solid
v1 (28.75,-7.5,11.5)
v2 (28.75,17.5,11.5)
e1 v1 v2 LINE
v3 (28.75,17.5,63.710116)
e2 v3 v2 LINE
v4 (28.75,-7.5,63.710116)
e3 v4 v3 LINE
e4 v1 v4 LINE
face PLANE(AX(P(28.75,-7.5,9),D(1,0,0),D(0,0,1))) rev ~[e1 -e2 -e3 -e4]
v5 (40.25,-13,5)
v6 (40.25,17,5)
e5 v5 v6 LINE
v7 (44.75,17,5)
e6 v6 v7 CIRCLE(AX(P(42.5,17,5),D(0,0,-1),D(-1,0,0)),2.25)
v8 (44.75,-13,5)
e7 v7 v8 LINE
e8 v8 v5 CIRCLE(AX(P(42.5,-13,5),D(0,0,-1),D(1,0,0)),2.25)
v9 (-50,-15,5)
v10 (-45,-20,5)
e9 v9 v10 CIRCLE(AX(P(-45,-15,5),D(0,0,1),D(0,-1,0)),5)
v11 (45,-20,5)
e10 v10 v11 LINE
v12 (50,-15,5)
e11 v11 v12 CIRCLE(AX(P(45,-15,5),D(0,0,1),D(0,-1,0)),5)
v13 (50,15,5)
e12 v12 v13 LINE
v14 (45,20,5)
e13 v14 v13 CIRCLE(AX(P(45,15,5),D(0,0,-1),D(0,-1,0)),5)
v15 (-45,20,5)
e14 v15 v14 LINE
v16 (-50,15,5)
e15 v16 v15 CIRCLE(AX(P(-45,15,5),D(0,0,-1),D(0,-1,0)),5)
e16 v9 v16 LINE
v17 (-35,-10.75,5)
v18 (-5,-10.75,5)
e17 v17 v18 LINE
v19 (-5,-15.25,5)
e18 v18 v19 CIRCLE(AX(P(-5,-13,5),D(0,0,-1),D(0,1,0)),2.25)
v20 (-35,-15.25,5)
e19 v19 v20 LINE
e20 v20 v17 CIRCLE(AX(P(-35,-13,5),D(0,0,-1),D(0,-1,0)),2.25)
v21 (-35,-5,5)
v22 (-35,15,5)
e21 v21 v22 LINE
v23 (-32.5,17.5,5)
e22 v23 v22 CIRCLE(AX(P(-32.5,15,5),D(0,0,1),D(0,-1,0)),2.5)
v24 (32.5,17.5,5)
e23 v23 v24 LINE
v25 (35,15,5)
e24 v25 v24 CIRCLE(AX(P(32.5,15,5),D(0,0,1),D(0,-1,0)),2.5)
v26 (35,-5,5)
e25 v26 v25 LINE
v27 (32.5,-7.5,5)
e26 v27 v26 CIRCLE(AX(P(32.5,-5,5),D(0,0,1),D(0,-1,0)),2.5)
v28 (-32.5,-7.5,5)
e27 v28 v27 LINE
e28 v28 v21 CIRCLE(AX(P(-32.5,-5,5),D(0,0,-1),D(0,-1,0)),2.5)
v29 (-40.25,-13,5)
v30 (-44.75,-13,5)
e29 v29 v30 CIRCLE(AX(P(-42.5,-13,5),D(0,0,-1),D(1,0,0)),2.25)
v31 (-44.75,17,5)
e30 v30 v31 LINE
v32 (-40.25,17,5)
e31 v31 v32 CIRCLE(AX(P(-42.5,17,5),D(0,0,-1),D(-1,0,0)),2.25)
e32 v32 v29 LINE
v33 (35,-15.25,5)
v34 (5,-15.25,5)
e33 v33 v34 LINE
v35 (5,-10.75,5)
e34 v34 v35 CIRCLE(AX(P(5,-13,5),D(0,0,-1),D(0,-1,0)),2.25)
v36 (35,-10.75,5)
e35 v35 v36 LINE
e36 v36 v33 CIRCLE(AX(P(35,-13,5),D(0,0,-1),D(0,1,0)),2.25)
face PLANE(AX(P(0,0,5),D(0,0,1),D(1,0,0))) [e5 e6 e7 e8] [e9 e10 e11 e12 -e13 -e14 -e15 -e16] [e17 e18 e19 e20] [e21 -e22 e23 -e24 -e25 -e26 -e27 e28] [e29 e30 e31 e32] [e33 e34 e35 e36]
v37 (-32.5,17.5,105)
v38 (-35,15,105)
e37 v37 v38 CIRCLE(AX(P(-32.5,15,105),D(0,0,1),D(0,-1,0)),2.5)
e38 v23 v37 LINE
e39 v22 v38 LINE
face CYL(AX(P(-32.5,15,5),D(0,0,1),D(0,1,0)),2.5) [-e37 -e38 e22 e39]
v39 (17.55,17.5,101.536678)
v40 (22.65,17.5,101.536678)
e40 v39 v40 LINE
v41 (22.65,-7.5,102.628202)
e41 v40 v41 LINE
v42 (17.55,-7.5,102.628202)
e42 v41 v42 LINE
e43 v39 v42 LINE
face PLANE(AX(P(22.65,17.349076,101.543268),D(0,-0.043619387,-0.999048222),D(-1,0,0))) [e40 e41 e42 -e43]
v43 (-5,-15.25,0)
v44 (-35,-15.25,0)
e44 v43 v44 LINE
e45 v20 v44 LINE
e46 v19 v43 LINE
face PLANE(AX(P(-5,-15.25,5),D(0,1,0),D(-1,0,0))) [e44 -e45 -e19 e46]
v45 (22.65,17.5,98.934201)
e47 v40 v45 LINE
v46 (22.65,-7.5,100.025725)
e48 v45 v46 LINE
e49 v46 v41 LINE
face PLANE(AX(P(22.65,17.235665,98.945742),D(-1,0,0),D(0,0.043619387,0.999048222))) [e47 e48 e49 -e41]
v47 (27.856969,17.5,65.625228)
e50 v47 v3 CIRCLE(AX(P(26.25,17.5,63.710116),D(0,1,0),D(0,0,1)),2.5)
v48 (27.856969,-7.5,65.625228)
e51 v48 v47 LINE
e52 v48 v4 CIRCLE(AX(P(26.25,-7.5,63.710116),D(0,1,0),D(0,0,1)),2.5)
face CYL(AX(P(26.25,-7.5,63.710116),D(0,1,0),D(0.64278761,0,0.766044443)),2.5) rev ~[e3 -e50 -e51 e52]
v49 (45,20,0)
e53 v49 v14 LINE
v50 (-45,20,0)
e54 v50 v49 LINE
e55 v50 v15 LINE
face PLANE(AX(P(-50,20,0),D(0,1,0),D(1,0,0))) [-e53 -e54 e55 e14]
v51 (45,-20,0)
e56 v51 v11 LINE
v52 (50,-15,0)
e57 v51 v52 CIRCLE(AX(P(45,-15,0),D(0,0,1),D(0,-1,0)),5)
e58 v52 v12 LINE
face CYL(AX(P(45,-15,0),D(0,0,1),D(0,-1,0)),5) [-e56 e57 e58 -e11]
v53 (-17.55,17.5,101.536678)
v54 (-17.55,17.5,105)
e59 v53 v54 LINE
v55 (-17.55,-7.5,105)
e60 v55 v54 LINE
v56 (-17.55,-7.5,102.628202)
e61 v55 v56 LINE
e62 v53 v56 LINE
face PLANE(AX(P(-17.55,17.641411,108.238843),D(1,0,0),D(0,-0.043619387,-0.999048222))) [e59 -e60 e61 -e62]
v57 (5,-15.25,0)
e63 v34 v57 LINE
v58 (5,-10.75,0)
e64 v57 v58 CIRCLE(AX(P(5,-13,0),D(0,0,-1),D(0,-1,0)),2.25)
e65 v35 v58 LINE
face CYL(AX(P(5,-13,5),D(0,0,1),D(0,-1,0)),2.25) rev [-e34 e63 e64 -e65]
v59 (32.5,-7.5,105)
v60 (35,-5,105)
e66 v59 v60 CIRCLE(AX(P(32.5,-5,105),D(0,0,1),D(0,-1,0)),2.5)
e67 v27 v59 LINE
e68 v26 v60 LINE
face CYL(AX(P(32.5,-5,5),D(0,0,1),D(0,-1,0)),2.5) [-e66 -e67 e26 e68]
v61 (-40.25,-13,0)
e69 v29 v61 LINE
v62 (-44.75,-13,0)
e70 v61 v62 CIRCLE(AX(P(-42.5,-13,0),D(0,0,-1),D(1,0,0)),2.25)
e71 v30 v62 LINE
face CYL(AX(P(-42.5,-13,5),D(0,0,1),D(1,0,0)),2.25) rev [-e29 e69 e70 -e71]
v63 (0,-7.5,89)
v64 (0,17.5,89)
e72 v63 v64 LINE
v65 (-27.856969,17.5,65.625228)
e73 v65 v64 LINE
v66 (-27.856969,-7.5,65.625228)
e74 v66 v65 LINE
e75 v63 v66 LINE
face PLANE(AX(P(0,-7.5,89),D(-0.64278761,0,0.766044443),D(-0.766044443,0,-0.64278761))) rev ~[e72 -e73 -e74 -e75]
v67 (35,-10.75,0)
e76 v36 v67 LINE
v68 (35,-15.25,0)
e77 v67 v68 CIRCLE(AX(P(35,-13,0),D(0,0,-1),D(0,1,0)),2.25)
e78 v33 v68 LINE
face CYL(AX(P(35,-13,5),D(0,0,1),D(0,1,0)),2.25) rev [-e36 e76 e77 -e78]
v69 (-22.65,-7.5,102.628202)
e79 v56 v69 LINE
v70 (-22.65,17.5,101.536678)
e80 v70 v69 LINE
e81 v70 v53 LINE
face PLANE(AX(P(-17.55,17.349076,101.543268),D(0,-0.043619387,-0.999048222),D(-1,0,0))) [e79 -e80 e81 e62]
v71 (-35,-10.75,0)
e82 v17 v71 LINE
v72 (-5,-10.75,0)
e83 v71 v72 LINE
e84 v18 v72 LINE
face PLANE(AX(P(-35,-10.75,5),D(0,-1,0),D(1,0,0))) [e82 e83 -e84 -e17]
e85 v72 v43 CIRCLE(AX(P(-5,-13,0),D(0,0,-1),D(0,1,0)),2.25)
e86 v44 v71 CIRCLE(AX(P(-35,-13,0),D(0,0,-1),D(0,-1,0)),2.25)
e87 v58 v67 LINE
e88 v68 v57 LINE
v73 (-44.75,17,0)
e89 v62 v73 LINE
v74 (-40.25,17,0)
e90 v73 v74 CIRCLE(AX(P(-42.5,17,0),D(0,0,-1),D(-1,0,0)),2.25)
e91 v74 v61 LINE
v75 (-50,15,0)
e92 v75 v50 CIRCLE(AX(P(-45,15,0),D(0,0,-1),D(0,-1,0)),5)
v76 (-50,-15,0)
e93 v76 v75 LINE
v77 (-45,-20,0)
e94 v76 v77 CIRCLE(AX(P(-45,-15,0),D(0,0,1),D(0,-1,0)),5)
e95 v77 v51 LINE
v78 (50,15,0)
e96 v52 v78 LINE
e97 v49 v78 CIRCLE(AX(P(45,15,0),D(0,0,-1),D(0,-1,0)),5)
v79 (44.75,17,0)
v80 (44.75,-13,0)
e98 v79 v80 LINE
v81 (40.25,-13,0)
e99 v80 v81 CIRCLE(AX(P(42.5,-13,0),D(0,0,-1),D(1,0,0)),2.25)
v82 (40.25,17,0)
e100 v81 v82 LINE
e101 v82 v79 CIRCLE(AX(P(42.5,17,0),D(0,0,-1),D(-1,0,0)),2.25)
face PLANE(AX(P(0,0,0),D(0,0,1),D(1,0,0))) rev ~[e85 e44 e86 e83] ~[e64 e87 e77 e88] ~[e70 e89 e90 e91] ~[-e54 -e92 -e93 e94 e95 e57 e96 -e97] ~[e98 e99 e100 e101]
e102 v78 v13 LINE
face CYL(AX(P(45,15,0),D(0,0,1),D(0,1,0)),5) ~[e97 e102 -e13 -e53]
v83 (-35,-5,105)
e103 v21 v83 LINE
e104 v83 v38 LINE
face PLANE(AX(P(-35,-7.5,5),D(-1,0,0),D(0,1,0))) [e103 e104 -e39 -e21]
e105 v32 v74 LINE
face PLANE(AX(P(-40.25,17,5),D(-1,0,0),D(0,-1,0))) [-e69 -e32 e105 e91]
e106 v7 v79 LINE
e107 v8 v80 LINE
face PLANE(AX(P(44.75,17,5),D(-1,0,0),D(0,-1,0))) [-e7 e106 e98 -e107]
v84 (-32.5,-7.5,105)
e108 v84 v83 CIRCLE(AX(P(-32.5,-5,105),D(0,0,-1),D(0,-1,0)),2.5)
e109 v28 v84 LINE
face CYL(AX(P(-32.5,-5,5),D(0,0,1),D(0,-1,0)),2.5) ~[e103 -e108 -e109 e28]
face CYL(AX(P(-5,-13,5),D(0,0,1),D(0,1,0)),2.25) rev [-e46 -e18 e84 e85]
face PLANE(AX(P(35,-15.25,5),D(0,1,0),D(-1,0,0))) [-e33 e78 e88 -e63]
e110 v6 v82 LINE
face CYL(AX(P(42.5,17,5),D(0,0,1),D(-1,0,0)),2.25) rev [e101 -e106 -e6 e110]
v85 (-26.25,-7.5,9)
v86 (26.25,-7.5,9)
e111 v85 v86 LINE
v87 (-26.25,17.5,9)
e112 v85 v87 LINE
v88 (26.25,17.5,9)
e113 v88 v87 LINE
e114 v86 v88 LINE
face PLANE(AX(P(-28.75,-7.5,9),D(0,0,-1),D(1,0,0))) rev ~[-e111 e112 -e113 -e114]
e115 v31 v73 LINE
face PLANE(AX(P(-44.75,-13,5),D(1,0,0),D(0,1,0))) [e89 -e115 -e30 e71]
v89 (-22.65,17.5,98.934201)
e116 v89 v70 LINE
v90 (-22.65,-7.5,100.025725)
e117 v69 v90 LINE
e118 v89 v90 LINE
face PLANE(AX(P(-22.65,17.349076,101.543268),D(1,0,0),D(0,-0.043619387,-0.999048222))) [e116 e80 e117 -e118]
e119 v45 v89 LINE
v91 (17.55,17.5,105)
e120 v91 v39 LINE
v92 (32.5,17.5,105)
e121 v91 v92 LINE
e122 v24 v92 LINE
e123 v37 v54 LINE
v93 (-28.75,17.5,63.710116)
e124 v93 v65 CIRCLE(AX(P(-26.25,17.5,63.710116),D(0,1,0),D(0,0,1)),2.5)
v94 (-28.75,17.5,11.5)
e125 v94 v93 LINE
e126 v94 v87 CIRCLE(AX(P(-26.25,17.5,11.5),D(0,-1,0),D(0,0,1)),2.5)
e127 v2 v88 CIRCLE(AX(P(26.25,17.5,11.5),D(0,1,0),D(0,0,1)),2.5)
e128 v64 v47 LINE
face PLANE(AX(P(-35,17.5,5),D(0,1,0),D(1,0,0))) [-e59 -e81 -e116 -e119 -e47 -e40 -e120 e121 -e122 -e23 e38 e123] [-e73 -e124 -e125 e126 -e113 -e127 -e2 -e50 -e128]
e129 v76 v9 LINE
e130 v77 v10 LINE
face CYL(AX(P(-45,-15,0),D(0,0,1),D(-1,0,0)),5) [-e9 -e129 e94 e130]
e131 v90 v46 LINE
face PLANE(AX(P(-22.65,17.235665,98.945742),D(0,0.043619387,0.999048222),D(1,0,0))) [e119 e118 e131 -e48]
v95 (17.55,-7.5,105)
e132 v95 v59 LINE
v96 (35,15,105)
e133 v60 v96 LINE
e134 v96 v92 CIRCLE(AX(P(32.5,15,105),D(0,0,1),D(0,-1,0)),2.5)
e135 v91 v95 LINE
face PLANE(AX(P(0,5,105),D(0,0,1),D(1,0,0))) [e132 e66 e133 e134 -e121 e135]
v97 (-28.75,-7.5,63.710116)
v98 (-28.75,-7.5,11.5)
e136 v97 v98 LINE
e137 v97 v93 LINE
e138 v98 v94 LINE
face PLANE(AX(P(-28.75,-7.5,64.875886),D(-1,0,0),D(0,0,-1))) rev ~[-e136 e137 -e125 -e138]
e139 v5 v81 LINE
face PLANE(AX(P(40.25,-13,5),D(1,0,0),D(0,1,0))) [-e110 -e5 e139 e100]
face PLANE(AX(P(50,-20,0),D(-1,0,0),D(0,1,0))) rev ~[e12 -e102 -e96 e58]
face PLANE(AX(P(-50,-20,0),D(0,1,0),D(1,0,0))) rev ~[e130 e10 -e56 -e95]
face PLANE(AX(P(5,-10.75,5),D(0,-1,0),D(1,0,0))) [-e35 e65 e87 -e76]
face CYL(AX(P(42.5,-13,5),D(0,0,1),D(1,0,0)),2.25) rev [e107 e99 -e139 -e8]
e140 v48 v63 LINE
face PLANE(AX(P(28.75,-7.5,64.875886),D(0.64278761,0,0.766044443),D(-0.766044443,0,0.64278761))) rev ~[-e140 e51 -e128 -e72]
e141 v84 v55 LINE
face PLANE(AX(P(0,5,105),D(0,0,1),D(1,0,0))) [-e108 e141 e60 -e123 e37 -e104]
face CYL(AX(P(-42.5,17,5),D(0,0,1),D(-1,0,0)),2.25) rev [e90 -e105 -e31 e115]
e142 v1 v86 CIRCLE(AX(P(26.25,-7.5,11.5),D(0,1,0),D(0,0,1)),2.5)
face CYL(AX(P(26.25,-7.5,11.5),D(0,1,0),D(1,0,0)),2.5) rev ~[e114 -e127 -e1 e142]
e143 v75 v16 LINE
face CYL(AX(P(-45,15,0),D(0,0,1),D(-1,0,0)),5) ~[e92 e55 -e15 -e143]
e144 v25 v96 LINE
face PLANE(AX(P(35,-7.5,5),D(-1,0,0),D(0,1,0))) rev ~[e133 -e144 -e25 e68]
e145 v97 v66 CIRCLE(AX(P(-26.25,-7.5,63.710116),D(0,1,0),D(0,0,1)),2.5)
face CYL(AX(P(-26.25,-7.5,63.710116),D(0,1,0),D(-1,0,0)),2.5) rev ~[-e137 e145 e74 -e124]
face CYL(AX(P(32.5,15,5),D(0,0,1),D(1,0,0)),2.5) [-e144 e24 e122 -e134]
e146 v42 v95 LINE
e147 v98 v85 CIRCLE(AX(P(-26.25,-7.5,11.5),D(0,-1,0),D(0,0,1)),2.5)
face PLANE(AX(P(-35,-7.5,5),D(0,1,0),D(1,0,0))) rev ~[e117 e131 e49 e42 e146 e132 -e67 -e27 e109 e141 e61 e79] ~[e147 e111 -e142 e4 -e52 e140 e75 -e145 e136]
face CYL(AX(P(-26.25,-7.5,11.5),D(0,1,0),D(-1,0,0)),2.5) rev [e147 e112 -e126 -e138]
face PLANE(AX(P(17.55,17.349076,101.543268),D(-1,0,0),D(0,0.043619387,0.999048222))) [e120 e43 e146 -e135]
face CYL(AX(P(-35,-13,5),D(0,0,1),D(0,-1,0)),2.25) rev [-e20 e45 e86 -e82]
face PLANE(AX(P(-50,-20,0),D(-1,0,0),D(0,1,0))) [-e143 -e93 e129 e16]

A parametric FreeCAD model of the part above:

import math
import FreeCAD as App
import Part
import Sketcher
from FreeCAD import Vector
Q = App.Units.Quantity


def edges_at(feature, points):
    """Names of the edges that pass closest to the given points."""
    edges = feature.Shape.Edges
    near = lambda p: min(range(len(edges)), key=lambda i: edges[i].distToShape(Part.Vertex(*p))[0])
    return sorted({f"Edge{near(p) + 1}" for p in points})


def add_polygon(sketch, points):
    """Adds a closed chain of lines whose ends are joined by coincident constraints."""
    first, n = sketch.GeometryCount, len(points)
    for a, b in zip(points, points[1:] + points[:1]):
        sketch.addGeometry(Part.LineSegment(App.Vector(*a, 0), App.Vector(*b, 0)), False)
    for i in range(n):
        sketch.addConstraint(Sketcher.Constraint("Coincident", first + i, 2, first + (i + 1) % n, 1))

doc = App.newDocument("Part")
body = doc.addObject("PartDesign::Body", "Body")

# Sketch on XY plane
sketch1 = doc.addObject("Sketcher::SketchObject", "Sketch")
body.addObject(sketch1)
sketch1.AttachmentSupport = (doc.XY_Plane, [""])
sketch1.MapMode = "FlatFace"
add_polygon(sketch1, [(-50, 20), (-50, -20), (50, -20), (50, 20)])  # lines 0-3
sketch1.addConstraint([
    Sketcher.Constraint("Vertical", 0),
    Sketcher.Constraint("Horizontal", 1),
    Sketcher.Constraint("Vertical", 2),
    Sketcher.Constraint("Horizontal", 3),
    Sketcher.Constraint("Symmetric", 0, 2, 2, 2, -1, 1),
    Sketcher.Constraint("DistanceX", 1, 1, 1, 2, Q("100 mm")),
    Sketcher.Constraint("DistanceY", 0, 2, 0, 1, Q("40 mm")),
])
pad1 = doc.addObject("PartDesign::Pad", "Pad")
body.addObject(pad1)
pad1.Profile = sketch1
pad1.Length = 5

# Sketch on XY plane
sketch2 = doc.addObject("Sketcher::SketchObject", "Sketch001")
body.addObject(sketch2)
sketch2.AttachmentSupport = (doc.XY_Plane, [""])
sketch2.MapMode = "FlatFace"
sketch2.AttachmentOffset = App.Placement(Vector(0, 0, 5), App.Rotation())
sketch2.addGeometry([
    Part.LineSegment(Vector(-40.2, -13, 0), Vector(-40.2, 17, 0)),
    Part.ArcOfCircle(Part.Circle(Vector(-42.5, 17, 0), Vector(0, 0, 1), 2.2), math.radians(0), math.radians(180)),
    Part.LineSegment(Vector(-44.8, 17, 0), Vector(-44.8, -13, 0)),
    Part.ArcOfCircle(Part.Circle(Vector(-42.5, -13, 0), Vector(0, 0, 1), 2.2), math.radians(180), math.radians(360)),
], False)
sketch2.addConstraint([
    Sketcher.Constraint("Tangent", 0, 2, 1, 1),
    Sketcher.Constraint("Tangent", 1, 2, 2, 1),
    Sketcher.Constraint("Tangent", 2, 2, 3, 1),
    Sketcher.Constraint("Tangent", 3, 2, 0, 1),
    Sketcher.Constraint("Vertical", 0),
    Sketcher.Constraint("Vertical", 2),
    Sketcher.Constraint("DistanceY", 0, 1, 0, 2, Q("30 mm")),
    Sketcher.Constraint("Radius", 1, Q("2.25 mm")),
    Sketcher.Constraint("DistanceY", -1, 1, 1, 3, Q("17 mm")),
    Sketcher.Constraint("DistanceX", 1, 3, -1, 1, Q("42.5 mm")),
])
pocket1 = doc.addObject("PartDesign::Pocket", "Pocket")
body.addObject(pocket1)
pocket1.Profile = sketch2
pocket1.Length = 5

# Sketch on XY plane
sketch3 = doc.addObject("Sketcher::SketchObject", "Sketch002")
body.addObject(sketch3)
sketch3.AttachmentSupport = (doc.XY_Plane, [""])
sketch3.MapMode = "FlatFace"
sketch3.AttachmentOffset = App.Placement(Vector(0, 0, 5), App.Rotation())
sketch3.addGeometry([
    Part.LineSegment(Vector(-5, -10.8, 0), Vector(-35, -10.8, 0)),
    Part.ArcOfCircle(Part.Circle(Vector(-35, -13, 0), Vector(0, 0, 1), 2.2), math.radians(90), math.radians(270)),
    Part.LineSegment(Vector(-35, -15.2, 0), Vector(-5, -15.2, 0)),
    Part.ArcOfCircle(Part.Circle(Vector(-5, -13, 0), Vector(0, 0, 1), 2.2), math.radians(-90), math.radians(90)),
], False)
sketch3.addConstraint([
    Sketcher.Constraint("Tangent", 0, 2, 1, 1),
    Sketcher.Constraint("Tangent", 1, 2, 2, 1),
    Sketcher.Constraint("Tangent", 2, 2, 3, 1),
    Sketcher.Constraint("Tangent", 3, 2, 0, 1),
    Sketcher.Constraint("Horizontal", 0),
    Sketcher.Constraint("Horizontal", 2),
    Sketcher.Constraint("DistanceX", 0, 2, 0, 1, Q("30 mm")),
    Sketcher.Constraint("Radius", 1, Q("2.25 mm")),
    Sketcher.Constraint("DistanceX", 1, 3, -1, 1, Q("35 mm")),
    Sketcher.Constraint("DistanceY", 1, 3, -1, 1, Q("13 mm")),
])
pocket2 = doc.addObject("PartDesign::Pocket", "Pocket001")
body.addObject(pocket2)
pocket2.Profile = sketch3
pocket2.Length = 5

# Sketch on XY plane
sketch4 = doc.addObject("Sketcher::SketchObject", "Sketch003")
body.addObject(sketch4)
sketch4.AttachmentSupport = (doc.XY_Plane, [""])
sketch4.MapMode = "FlatFace"
sketch4.AttachmentOffset = App.Placement(Vector(0, 0, 5), App.Rotation())
sketch4.addGeometry([
    Part.LineSegment(Vector(35, -10.8, 0), Vector(5, -10.8, 0)),
    Part.ArcOfCircle(Part.Circle(Vector(5, -13, 0), Vector(0, 0, 1), 2.2), math.radians(90), math.radians(270)),
    Part.LineSegment(Vector(5, -15.2, 0), Vector(35, -15.2, 0)),
    Part.ArcOfCircle(Part.Circle(Vector(35, -13, 0), Vector(0, 0, 1), 2.2), math.radians(-90), math.radians(90)),
], False)
sketch4.addConstraint([
    Sketcher.Constraint("Tangent", 0, 2, 1, 1),
    Sketcher.Constraint("Tangent", 1, 2, 2, 1),
    Sketcher.Constraint("Tangent", 2, 2, 3, 1),
    Sketcher.Constraint("Tangent", 3, 2, 0, 1),
    Sketcher.Constraint("Horizontal", 0),
    Sketcher.Constraint("Horizontal", 2),
    Sketcher.Constraint("DistanceX", 0, 2, 0, 1, Q("30 mm")),
    Sketcher.Constraint("Radius", 1, Q("2.25 mm")),
    Sketcher.Constraint("DistanceX", -1, 1, 1, 3, Q("5 mm")),
    Sketcher.Constraint("DistanceY", 1, 3, -1, 1, Q("13 mm")),
])
pocket3 = doc.addObject("PartDesign::Pocket", "Pocket002")
body.addObject(pocket3)
pocket3.Profile = sketch4
pocket3.Length = 5

# Sketch on XY plane
sketch5 = doc.addObject("Sketcher::SketchObject", "Sketch004")
body.addObject(sketch5)
sketch5.AttachmentSupport = (doc.XY_Plane, [""])
sketch5.MapMode = "FlatFace"
sketch5.AttachmentOffset = App.Placement(Vector(0, 0, 5), App.Rotation())
sketch5.addGeometry([
    Part.LineSegment(Vector(44.8, -13, 0), Vector(44.8, 17, 0)),
    Part.ArcOfCircle(Part.Circle(Vector(42.5, 17, 0), Vector(0, 0, 1), 2.2), math.radians(0), math.radians(180)),
    Part.LineSegment(Vector(40.2, 17, 0), Vector(40.2, -13, 0)),
    Part.ArcOfCircle(Part.Circle(Vector(42.5, -13, 0), Vector(0, 0, 1), 2.2), math.radians(180), math.radians(360)),
], False)
sketch5.addConstraint([
    Sketcher.Constraint("Tangent", 0, 2, 1, 1),
    Sketcher.Constraint("Tangent", 1, 2, 2, 1),
    Sketcher.Constraint("Tangent", 2, 2, 3, 1),
    Sketcher.Constraint("Tangent", 3, 2, 0, 1),
    Sketcher.Constraint("Vertical", 0),
    Sketcher.Constraint("Vertical", 2),
    Sketcher.Constraint("DistanceY", 0, 1, 0, 2, Q("30 mm")),
    Sketcher.Constraint("Radius", 1, Q("2.25 mm")),
    Sketcher.Constraint("DistanceY", -1, 1, 1, 3, Q("17 mm")),
    Sketcher.Constraint("DistanceX", -1, 1, 1, 3, Q("42.5 mm")),
])
pocket4 = doc.addObject("PartDesign::Pocket", "Pocket003")
body.addObject(pocket4)
pocket4.Profile = sketch5
pocket4.Length = 5

# Sketch on XY plane
sketch6 = doc.addObject("Sketcher::SketchObject", "Sketch005")
body.addObject(sketch6)
sketch6.AttachmentSupport = (doc.XY_Plane, [""])
sketch6.MapMode = "FlatFace"
sketch6.AttachmentOffset = App.Placement(Vector(0, 0, 5), App.Rotation())
add_polygon(sketch6, [(-35, 18), (-35, -8), (35, -8), (35, 18)])  # lines 0-3
sketch6.addConstraint([
    Sketcher.Constraint("Vertical", 0),
    Sketcher.Constraint("Horizontal", 1),
    Sketcher.Constraint("Vertical", 2),
    Sketcher.Constraint("Horizontal", 3),
    Sketcher.Constraint("DistanceX", 1, 1, 1, 2, Q("70 mm")),
    Sketcher.Constraint("DistanceY", 0, 2, 0, 1, Q("25 mm")),
    Sketcher.Constraint("DistanceX", 0, 2, -1, 1, Q("35 mm")),
    Sketcher.Constraint("DistanceY", 0, 2, -1, 1, Q("7.5 mm")),
])
pad2 = doc.addObject("PartDesign::Pad", "Pad001")
body.addObject(pad2)
pad2.Profile = sketch6
pad2.Length = 100
doc.recompute()

fillet = doc.addObject("PartDesign::Fillet", "Fillet")
body.addObject(fillet)
fillet.Base = (pad2, edges_at(pad2, [
    (-50, 20, 2.5),
    (50, 20, 2.5),
    (50, -20, 2.5),
    (-50, -20, 2.5),
]))
fillet.Radius = 5
doc.recompute()

fillet2 = doc.addObject("PartDesign::Fillet", "Fillet001")
body.addObject(fillet2)
fillet2.Base = (fillet, edges_at(fillet, [
    (-35, 17.5, 55),
    (-35, -7.5, 55),
    (35, -7.5, 55),
    (35, 17.5, 55),
]))
fillet2.Radius = 2.5

# Sketch on XZ plane
sketch7 = doc.addObject("Sketcher::SketchObject", "Sketch006")
body.addObject(sketch7)
sketch7.AttachmentSupport = (doc.XZ_Plane, [""])
sketch7.MapMode = "FlatFace"
sketch7.AttachmentOffset = App.Placement(Vector(0, 0, 7.5), App.Rotation())
add_polygon(sketch7, [(-29, 9), (29, 9), (29, 65), (0, 89), (-29, 65)])  # lines 0-4
sketch7.addConstraint([
    Sketcher.Constraint("Horizontal", 0),
    Sketcher.Constraint("Vertical", 1),
    Sketcher.Constraint("Vertical", 4),
    Sketcher.Constraint("Symmetric", 1, 2, 3, 2, -2),
    Sketcher.Constraint("PointOnObject", 2, 2, -2),
    Sketcher.Constraint("Angle", 2, Q("140 deg")),
    Sketcher.Constraint("DistanceX", 0, 1, 0, 2, Q("57.5 mm")),
    Sketcher.Constraint("DistanceY", -1, 1, 0, 2, Q("9 mm")),
    Sketcher.Constraint("DistanceY", -1, 1, 2, 2, Q("89 mm")),
])
pocket5 = doc.addObject("PartDesign::Pocket", "Pocket004")
body.addObject(pocket5)
pocket5.Profile = sketch7
pocket5.Type = "ThroughAll"
doc.recompute()

fillet3 = doc.addObject("PartDesign::Fillet", "Fillet002")
body.addObject(fillet3)
fillet3.Base = (pocket5, edges_at(pocket5, [
    (28.75, 5, 9),
    (-28.75, 5, 9),
    (-28.75, 5, 64.876),
    (28.75, 5, 64.876),
]))
fillet3.Radius = 2.5

# Sketch on an angled plane
sketch8 = doc.addObject("Sketcher::SketchObject", "Sketch007")
body.addObject(sketch8)
sketch8.Placement = App.Placement(Vector(0, 12.891027, -0.562834), App.Rotation(Vector(-1, 0, 0), Vector(0, 0.043619387, 0.999048222), Vector(0, 0.999048222, -0.043619387), "ZXY"))
add_polygon(sketch8, [(22.6, 102.2), (17.6, 102.2), (17.6, 108.9), (-17.6, 108.9), (-17.6, 102.2), (-22.6, 102.2), (-22.6, 99.6), (22.6, 99.6)])  # lines 0-7
sketch8.addConstraint([
    Sketcher.Constraint("Horizontal", 0),
    Sketcher.Constraint("Vertical", 1),
    Sketcher.Constraint("Horizontal", 2),
    Sketcher.Constraint("Vertical", 3),
    Sketcher.Constraint("Horizontal", 4),
    Sketcher.Constraint("Vertical", 5),
    Sketcher.Constraint("Horizontal", 6),
    Sketcher.Constraint("Vertical", 7),
    Sketcher.Constraint("Symmetric", 0, 2, 3, 2, -2),
    Sketcher.Constraint("Equal", 0, 4),
    Sketcher.Constraint("DistanceX", 0, 2, 0, 1, Q("5.1 mm")),
    Sketcher.Constraint("DistanceX", 2, 2, 2, 1, Q("35.1 mm")),
    Sketcher.Constraint("DistanceY", 5, 2, 5, 1, Q("2.6 mm")),
    Sketcher.Constraint("DistanceY", 1, 1, 1, 2, Q("6.701954 mm")),
    Sketcher.Constraint("DistanceY", -1, 1, 1, 2, Q("108.905331 mm")),
])
pocket6 = doc.addObject("PartDesign::Pocket", "Pocket005")
body.addObject(pocket6)
pocket6.Profile = sketch8
pocket6.Type = "ThroughAll"
pocket6.Midplane = True

doc.recompute()
